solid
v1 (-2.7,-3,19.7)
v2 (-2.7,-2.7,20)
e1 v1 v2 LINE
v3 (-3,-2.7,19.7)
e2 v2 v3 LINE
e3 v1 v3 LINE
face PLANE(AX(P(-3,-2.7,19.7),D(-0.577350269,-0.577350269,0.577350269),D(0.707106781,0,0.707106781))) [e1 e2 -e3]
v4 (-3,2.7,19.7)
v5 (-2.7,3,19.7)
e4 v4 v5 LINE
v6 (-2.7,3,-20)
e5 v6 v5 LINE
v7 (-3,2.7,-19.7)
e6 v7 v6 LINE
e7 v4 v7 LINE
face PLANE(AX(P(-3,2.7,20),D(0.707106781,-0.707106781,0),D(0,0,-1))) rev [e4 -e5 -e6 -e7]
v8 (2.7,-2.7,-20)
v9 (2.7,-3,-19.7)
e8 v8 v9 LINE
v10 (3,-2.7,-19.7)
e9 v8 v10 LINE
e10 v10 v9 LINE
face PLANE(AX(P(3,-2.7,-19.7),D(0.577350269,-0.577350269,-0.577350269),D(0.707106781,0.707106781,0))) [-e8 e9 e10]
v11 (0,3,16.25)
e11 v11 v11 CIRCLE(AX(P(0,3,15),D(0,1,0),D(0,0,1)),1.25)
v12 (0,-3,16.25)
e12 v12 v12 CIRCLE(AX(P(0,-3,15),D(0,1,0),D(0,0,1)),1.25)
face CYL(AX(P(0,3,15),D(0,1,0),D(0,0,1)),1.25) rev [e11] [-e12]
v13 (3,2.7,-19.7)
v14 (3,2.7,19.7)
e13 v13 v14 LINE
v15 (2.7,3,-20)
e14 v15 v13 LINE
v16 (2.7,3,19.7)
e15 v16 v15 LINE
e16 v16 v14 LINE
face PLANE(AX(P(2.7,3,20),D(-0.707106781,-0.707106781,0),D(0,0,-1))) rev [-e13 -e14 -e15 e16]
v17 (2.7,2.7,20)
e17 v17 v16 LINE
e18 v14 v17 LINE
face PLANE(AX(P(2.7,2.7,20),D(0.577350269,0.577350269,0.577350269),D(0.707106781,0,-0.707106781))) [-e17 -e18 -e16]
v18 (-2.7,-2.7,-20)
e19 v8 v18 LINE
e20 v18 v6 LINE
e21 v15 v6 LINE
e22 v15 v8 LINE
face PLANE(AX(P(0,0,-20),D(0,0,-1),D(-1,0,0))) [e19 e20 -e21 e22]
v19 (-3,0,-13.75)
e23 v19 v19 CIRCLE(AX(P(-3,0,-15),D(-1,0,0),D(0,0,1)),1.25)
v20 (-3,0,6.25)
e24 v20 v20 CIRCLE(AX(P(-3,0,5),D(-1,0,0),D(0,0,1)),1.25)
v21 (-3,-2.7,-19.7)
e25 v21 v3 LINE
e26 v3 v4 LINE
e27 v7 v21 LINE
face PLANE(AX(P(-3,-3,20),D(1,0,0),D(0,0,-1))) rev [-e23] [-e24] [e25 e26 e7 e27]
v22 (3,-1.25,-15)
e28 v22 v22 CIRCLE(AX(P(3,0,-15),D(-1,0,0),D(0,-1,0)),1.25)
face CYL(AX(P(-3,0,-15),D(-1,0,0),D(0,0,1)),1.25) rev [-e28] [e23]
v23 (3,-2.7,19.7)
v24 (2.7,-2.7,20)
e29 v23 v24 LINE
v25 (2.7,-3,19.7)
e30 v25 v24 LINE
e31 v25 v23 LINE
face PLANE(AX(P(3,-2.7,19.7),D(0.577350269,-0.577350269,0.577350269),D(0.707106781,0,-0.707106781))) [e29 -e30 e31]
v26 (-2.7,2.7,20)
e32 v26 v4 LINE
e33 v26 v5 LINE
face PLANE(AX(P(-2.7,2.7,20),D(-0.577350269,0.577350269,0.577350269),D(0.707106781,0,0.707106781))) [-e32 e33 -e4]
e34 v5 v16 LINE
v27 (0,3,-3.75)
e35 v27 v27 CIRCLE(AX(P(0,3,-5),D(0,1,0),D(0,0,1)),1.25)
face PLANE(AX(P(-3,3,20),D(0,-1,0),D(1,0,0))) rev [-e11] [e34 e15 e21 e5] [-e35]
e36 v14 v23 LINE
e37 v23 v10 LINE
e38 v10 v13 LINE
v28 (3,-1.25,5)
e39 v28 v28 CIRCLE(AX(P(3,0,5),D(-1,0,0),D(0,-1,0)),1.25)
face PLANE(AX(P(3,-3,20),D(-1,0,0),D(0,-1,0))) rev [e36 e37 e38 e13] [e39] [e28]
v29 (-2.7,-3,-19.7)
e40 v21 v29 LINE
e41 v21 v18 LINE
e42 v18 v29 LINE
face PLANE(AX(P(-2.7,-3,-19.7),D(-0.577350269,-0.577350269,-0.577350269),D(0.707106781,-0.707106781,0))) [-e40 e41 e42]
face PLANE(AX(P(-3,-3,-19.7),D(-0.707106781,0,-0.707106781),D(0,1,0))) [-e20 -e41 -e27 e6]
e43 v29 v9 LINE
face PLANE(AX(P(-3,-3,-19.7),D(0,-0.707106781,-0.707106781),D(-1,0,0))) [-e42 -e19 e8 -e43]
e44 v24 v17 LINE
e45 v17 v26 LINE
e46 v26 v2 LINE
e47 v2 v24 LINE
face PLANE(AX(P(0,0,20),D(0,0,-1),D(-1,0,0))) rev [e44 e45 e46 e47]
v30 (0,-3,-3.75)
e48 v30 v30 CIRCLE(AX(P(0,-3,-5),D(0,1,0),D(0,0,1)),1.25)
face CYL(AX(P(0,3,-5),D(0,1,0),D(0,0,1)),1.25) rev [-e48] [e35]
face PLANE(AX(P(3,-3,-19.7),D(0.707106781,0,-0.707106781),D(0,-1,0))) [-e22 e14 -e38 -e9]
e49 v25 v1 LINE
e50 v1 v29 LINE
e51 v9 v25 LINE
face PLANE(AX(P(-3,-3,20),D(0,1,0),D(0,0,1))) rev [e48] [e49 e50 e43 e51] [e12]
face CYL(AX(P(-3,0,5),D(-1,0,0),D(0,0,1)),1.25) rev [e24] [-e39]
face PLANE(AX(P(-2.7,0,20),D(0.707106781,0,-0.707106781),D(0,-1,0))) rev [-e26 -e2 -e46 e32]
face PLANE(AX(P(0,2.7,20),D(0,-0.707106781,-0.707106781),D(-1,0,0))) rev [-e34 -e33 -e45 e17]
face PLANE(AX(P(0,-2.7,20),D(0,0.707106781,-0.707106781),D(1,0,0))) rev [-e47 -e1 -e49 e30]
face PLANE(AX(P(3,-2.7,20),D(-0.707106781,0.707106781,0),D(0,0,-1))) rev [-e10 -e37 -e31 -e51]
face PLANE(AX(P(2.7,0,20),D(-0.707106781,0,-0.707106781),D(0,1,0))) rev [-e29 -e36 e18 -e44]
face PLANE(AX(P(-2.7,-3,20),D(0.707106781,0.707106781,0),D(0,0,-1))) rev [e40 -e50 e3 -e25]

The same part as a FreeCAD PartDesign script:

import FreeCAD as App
import Part
import Sketcher
from FreeCAD import Vector
Q = App.Units.Quantity


def edges_at(feature, points):
    """Names of the edges that pass closest to the given points."""
    edges = feature.Shape.Edges
    near = lambda p: min(range(len(edges)), key=lambda i: edges[i].distToShape(Part.Vertex(*p))[0])
    return sorted({f"Edge{near(p) + 1}" for p in points})

doc = App.newDocument("Part")
body = doc.addObject("PartDesign::Body", "Body")

# Sketch on XY plane
sketch1 = doc.addObject("Sketcher::SketchObject", "Sketch")
body.addObject(sketch1)
sketch1.AttachmentSupport = (doc.XY_Plane, [""])
sketch1.MapMode = "FlatFace"
sketch1.addGeometry([
    Part.LineSegment(Vector(-3, 3, 0), Vector(-3, -3, 0)),
    Part.LineSegment(Vector(-3, -3, 0), Vector(3, -3, 0)),
    Part.LineSegment(Vector(3, -3, 0), Vector(3, 3, 0)),
    Part.LineSegment(Vector(3, 3, 0), Vector(-3, 3, 0)),
], False)
sketch1.addConstraint([
    Sketcher.Constraint("Coincident", 0, 2, 1, 1),
    Sketcher.Constraint("Coincident", 1, 2, 2, 1),
    Sketcher.Constraint("Coincident", 2, 2, 3, 1),
    Sketcher.Constraint("Coincident", 3, 2, 0, 1),
    Sketcher.Constraint("Vertical", 0),
    Sketcher.Constraint("Horizontal", 1),
    Sketcher.Constraint("Vertical", 2),
    Sketcher.Constraint("Horizontal", 3),
    Sketcher.Constraint("Symmetric", 0, 2, 2, 2, -1, 1),
    Sketcher.Constraint("Equal", 3, 0),
    Sketcher.Constraint("DistanceX", 1, 1, 1, 2, Q("6 mm")),
])
pad1 = doc.addObject("PartDesign::Pad", "Pad")
body.addObject(pad1)
pad1.Profile = sketch1
pad1.Length = 40
pad1.Midplane = True

# Sketch on YZ plane
sketch2 = doc.addObject("Sketcher::SketchObject", "Sketch001")
body.addObject(sketch2)
sketch2.AttachmentSupport = (doc.YZ_Plane, [""])
sketch2.MapMode = "FlatFace"
sketch2.AttachmentOffset = App.Placement(Vector(0, 0, -3), App.Rotation())
sketch2.addGeometry([
    Part.Circle(Vector(0, -15, 0), Vector(0, 0, 1), 1.2),
    Part.Circle(Vector(0, 5, 0), Vector(0, 0, 1), 1.2),
], False)
sketch2.addConstraint([
    Sketcher.Constraint("Equal", 0, 1),
    Sketcher.Constraint("PointOnObject", 0, 3, -2),
    Sketcher.Constraint("PointOnObject", 1, 3, -2),
    Sketcher.Constraint("Diameter", 0, Q("2.5 mm")),
    Sketcher.Constraint("DistanceY", 0, 3, -1, 1, Q("15 mm")),
    Sketcher.Constraint("DistanceY", -1, 1, 1, 3, Q("5 mm")),
])
doc.recompute()
hole = doc.addObject("PartDesign::Hole", "Hole")
body.addObject(hole)
hole.Profile = sketch2
hole.ThreadType = "None"
hole.Diameter = 2.5
hole.DepthType = "Dimension"
hole.Depth = 6
hole.DrillPoint = "Flat"
hole.Reversed = True

# Sketch on XZ plane
sketch3 = doc.addObject("Sketcher::SketchObject", "Sketch002")
body.addObject(sketch3)
sketch3.AttachmentSupport = (doc.XZ_Plane, [""])
sketch3.MapMode = "FlatFace"
sketch3.AttachmentOffset = App.Placement(Vector(0, 0, -3), App.Rotation())
sketch3.addGeometry([
    Part.Circle(Vector(0, -5, 0), Vector(0, 0, 1), 1.2),
    Part.Circle(Vector(0, 15, 0), Vector(0, 0, 1), 1.2),
], False)
sketch3.addConstraint([
    Sketcher.Constraint("Equal", 0, 1),
    Sketcher.Constraint("PointOnObject", 0, 3, -2),
    Sketcher.Constraint("PointOnObject", 1, 3, -2),
    Sketcher.Constraint("Diameter", 0, Q("2.5 mm")),
    Sketcher.Constraint("DistanceY", 0, 3, -1, 1, Q("5 mm")),
    Sketcher.Constraint("DistanceY", -1, 1, 1, 3, Q("15 mm")),
])
doc.recompute()
hole2 = doc.addObject("PartDesign::Hole", "Hole001")
body.addObject(hole2)
hole2.Profile = sketch3
hole2.ThreadType = "None"
hole2.Diameter = 2.5
hole2.DepthType = "Dimension"
hole2.Depth = 6
hole2.DrillPoint = "Flat"
hole2.Reversed = True
doc.recompute()

chamfer = doc.addObject("PartDesign::Chamfer", "Chamfer")
body.addObject(chamfer)
chamfer.Base = (hole2, edges_at(hole2, [
    (-3, 0, 20),
    (0, -3, 20),
    (3, 0, 20),
    (0, -3, -20),
    (-3, 0, -20),
    (3, 0, -20),
    (3, -3, 0),
    (-3, -3, 0),
    (-3, 3, 0),
    (3, 3, 0),
    (0, 3, 20),
]))
chamfer.Size = 0.3

doc.recompute()
